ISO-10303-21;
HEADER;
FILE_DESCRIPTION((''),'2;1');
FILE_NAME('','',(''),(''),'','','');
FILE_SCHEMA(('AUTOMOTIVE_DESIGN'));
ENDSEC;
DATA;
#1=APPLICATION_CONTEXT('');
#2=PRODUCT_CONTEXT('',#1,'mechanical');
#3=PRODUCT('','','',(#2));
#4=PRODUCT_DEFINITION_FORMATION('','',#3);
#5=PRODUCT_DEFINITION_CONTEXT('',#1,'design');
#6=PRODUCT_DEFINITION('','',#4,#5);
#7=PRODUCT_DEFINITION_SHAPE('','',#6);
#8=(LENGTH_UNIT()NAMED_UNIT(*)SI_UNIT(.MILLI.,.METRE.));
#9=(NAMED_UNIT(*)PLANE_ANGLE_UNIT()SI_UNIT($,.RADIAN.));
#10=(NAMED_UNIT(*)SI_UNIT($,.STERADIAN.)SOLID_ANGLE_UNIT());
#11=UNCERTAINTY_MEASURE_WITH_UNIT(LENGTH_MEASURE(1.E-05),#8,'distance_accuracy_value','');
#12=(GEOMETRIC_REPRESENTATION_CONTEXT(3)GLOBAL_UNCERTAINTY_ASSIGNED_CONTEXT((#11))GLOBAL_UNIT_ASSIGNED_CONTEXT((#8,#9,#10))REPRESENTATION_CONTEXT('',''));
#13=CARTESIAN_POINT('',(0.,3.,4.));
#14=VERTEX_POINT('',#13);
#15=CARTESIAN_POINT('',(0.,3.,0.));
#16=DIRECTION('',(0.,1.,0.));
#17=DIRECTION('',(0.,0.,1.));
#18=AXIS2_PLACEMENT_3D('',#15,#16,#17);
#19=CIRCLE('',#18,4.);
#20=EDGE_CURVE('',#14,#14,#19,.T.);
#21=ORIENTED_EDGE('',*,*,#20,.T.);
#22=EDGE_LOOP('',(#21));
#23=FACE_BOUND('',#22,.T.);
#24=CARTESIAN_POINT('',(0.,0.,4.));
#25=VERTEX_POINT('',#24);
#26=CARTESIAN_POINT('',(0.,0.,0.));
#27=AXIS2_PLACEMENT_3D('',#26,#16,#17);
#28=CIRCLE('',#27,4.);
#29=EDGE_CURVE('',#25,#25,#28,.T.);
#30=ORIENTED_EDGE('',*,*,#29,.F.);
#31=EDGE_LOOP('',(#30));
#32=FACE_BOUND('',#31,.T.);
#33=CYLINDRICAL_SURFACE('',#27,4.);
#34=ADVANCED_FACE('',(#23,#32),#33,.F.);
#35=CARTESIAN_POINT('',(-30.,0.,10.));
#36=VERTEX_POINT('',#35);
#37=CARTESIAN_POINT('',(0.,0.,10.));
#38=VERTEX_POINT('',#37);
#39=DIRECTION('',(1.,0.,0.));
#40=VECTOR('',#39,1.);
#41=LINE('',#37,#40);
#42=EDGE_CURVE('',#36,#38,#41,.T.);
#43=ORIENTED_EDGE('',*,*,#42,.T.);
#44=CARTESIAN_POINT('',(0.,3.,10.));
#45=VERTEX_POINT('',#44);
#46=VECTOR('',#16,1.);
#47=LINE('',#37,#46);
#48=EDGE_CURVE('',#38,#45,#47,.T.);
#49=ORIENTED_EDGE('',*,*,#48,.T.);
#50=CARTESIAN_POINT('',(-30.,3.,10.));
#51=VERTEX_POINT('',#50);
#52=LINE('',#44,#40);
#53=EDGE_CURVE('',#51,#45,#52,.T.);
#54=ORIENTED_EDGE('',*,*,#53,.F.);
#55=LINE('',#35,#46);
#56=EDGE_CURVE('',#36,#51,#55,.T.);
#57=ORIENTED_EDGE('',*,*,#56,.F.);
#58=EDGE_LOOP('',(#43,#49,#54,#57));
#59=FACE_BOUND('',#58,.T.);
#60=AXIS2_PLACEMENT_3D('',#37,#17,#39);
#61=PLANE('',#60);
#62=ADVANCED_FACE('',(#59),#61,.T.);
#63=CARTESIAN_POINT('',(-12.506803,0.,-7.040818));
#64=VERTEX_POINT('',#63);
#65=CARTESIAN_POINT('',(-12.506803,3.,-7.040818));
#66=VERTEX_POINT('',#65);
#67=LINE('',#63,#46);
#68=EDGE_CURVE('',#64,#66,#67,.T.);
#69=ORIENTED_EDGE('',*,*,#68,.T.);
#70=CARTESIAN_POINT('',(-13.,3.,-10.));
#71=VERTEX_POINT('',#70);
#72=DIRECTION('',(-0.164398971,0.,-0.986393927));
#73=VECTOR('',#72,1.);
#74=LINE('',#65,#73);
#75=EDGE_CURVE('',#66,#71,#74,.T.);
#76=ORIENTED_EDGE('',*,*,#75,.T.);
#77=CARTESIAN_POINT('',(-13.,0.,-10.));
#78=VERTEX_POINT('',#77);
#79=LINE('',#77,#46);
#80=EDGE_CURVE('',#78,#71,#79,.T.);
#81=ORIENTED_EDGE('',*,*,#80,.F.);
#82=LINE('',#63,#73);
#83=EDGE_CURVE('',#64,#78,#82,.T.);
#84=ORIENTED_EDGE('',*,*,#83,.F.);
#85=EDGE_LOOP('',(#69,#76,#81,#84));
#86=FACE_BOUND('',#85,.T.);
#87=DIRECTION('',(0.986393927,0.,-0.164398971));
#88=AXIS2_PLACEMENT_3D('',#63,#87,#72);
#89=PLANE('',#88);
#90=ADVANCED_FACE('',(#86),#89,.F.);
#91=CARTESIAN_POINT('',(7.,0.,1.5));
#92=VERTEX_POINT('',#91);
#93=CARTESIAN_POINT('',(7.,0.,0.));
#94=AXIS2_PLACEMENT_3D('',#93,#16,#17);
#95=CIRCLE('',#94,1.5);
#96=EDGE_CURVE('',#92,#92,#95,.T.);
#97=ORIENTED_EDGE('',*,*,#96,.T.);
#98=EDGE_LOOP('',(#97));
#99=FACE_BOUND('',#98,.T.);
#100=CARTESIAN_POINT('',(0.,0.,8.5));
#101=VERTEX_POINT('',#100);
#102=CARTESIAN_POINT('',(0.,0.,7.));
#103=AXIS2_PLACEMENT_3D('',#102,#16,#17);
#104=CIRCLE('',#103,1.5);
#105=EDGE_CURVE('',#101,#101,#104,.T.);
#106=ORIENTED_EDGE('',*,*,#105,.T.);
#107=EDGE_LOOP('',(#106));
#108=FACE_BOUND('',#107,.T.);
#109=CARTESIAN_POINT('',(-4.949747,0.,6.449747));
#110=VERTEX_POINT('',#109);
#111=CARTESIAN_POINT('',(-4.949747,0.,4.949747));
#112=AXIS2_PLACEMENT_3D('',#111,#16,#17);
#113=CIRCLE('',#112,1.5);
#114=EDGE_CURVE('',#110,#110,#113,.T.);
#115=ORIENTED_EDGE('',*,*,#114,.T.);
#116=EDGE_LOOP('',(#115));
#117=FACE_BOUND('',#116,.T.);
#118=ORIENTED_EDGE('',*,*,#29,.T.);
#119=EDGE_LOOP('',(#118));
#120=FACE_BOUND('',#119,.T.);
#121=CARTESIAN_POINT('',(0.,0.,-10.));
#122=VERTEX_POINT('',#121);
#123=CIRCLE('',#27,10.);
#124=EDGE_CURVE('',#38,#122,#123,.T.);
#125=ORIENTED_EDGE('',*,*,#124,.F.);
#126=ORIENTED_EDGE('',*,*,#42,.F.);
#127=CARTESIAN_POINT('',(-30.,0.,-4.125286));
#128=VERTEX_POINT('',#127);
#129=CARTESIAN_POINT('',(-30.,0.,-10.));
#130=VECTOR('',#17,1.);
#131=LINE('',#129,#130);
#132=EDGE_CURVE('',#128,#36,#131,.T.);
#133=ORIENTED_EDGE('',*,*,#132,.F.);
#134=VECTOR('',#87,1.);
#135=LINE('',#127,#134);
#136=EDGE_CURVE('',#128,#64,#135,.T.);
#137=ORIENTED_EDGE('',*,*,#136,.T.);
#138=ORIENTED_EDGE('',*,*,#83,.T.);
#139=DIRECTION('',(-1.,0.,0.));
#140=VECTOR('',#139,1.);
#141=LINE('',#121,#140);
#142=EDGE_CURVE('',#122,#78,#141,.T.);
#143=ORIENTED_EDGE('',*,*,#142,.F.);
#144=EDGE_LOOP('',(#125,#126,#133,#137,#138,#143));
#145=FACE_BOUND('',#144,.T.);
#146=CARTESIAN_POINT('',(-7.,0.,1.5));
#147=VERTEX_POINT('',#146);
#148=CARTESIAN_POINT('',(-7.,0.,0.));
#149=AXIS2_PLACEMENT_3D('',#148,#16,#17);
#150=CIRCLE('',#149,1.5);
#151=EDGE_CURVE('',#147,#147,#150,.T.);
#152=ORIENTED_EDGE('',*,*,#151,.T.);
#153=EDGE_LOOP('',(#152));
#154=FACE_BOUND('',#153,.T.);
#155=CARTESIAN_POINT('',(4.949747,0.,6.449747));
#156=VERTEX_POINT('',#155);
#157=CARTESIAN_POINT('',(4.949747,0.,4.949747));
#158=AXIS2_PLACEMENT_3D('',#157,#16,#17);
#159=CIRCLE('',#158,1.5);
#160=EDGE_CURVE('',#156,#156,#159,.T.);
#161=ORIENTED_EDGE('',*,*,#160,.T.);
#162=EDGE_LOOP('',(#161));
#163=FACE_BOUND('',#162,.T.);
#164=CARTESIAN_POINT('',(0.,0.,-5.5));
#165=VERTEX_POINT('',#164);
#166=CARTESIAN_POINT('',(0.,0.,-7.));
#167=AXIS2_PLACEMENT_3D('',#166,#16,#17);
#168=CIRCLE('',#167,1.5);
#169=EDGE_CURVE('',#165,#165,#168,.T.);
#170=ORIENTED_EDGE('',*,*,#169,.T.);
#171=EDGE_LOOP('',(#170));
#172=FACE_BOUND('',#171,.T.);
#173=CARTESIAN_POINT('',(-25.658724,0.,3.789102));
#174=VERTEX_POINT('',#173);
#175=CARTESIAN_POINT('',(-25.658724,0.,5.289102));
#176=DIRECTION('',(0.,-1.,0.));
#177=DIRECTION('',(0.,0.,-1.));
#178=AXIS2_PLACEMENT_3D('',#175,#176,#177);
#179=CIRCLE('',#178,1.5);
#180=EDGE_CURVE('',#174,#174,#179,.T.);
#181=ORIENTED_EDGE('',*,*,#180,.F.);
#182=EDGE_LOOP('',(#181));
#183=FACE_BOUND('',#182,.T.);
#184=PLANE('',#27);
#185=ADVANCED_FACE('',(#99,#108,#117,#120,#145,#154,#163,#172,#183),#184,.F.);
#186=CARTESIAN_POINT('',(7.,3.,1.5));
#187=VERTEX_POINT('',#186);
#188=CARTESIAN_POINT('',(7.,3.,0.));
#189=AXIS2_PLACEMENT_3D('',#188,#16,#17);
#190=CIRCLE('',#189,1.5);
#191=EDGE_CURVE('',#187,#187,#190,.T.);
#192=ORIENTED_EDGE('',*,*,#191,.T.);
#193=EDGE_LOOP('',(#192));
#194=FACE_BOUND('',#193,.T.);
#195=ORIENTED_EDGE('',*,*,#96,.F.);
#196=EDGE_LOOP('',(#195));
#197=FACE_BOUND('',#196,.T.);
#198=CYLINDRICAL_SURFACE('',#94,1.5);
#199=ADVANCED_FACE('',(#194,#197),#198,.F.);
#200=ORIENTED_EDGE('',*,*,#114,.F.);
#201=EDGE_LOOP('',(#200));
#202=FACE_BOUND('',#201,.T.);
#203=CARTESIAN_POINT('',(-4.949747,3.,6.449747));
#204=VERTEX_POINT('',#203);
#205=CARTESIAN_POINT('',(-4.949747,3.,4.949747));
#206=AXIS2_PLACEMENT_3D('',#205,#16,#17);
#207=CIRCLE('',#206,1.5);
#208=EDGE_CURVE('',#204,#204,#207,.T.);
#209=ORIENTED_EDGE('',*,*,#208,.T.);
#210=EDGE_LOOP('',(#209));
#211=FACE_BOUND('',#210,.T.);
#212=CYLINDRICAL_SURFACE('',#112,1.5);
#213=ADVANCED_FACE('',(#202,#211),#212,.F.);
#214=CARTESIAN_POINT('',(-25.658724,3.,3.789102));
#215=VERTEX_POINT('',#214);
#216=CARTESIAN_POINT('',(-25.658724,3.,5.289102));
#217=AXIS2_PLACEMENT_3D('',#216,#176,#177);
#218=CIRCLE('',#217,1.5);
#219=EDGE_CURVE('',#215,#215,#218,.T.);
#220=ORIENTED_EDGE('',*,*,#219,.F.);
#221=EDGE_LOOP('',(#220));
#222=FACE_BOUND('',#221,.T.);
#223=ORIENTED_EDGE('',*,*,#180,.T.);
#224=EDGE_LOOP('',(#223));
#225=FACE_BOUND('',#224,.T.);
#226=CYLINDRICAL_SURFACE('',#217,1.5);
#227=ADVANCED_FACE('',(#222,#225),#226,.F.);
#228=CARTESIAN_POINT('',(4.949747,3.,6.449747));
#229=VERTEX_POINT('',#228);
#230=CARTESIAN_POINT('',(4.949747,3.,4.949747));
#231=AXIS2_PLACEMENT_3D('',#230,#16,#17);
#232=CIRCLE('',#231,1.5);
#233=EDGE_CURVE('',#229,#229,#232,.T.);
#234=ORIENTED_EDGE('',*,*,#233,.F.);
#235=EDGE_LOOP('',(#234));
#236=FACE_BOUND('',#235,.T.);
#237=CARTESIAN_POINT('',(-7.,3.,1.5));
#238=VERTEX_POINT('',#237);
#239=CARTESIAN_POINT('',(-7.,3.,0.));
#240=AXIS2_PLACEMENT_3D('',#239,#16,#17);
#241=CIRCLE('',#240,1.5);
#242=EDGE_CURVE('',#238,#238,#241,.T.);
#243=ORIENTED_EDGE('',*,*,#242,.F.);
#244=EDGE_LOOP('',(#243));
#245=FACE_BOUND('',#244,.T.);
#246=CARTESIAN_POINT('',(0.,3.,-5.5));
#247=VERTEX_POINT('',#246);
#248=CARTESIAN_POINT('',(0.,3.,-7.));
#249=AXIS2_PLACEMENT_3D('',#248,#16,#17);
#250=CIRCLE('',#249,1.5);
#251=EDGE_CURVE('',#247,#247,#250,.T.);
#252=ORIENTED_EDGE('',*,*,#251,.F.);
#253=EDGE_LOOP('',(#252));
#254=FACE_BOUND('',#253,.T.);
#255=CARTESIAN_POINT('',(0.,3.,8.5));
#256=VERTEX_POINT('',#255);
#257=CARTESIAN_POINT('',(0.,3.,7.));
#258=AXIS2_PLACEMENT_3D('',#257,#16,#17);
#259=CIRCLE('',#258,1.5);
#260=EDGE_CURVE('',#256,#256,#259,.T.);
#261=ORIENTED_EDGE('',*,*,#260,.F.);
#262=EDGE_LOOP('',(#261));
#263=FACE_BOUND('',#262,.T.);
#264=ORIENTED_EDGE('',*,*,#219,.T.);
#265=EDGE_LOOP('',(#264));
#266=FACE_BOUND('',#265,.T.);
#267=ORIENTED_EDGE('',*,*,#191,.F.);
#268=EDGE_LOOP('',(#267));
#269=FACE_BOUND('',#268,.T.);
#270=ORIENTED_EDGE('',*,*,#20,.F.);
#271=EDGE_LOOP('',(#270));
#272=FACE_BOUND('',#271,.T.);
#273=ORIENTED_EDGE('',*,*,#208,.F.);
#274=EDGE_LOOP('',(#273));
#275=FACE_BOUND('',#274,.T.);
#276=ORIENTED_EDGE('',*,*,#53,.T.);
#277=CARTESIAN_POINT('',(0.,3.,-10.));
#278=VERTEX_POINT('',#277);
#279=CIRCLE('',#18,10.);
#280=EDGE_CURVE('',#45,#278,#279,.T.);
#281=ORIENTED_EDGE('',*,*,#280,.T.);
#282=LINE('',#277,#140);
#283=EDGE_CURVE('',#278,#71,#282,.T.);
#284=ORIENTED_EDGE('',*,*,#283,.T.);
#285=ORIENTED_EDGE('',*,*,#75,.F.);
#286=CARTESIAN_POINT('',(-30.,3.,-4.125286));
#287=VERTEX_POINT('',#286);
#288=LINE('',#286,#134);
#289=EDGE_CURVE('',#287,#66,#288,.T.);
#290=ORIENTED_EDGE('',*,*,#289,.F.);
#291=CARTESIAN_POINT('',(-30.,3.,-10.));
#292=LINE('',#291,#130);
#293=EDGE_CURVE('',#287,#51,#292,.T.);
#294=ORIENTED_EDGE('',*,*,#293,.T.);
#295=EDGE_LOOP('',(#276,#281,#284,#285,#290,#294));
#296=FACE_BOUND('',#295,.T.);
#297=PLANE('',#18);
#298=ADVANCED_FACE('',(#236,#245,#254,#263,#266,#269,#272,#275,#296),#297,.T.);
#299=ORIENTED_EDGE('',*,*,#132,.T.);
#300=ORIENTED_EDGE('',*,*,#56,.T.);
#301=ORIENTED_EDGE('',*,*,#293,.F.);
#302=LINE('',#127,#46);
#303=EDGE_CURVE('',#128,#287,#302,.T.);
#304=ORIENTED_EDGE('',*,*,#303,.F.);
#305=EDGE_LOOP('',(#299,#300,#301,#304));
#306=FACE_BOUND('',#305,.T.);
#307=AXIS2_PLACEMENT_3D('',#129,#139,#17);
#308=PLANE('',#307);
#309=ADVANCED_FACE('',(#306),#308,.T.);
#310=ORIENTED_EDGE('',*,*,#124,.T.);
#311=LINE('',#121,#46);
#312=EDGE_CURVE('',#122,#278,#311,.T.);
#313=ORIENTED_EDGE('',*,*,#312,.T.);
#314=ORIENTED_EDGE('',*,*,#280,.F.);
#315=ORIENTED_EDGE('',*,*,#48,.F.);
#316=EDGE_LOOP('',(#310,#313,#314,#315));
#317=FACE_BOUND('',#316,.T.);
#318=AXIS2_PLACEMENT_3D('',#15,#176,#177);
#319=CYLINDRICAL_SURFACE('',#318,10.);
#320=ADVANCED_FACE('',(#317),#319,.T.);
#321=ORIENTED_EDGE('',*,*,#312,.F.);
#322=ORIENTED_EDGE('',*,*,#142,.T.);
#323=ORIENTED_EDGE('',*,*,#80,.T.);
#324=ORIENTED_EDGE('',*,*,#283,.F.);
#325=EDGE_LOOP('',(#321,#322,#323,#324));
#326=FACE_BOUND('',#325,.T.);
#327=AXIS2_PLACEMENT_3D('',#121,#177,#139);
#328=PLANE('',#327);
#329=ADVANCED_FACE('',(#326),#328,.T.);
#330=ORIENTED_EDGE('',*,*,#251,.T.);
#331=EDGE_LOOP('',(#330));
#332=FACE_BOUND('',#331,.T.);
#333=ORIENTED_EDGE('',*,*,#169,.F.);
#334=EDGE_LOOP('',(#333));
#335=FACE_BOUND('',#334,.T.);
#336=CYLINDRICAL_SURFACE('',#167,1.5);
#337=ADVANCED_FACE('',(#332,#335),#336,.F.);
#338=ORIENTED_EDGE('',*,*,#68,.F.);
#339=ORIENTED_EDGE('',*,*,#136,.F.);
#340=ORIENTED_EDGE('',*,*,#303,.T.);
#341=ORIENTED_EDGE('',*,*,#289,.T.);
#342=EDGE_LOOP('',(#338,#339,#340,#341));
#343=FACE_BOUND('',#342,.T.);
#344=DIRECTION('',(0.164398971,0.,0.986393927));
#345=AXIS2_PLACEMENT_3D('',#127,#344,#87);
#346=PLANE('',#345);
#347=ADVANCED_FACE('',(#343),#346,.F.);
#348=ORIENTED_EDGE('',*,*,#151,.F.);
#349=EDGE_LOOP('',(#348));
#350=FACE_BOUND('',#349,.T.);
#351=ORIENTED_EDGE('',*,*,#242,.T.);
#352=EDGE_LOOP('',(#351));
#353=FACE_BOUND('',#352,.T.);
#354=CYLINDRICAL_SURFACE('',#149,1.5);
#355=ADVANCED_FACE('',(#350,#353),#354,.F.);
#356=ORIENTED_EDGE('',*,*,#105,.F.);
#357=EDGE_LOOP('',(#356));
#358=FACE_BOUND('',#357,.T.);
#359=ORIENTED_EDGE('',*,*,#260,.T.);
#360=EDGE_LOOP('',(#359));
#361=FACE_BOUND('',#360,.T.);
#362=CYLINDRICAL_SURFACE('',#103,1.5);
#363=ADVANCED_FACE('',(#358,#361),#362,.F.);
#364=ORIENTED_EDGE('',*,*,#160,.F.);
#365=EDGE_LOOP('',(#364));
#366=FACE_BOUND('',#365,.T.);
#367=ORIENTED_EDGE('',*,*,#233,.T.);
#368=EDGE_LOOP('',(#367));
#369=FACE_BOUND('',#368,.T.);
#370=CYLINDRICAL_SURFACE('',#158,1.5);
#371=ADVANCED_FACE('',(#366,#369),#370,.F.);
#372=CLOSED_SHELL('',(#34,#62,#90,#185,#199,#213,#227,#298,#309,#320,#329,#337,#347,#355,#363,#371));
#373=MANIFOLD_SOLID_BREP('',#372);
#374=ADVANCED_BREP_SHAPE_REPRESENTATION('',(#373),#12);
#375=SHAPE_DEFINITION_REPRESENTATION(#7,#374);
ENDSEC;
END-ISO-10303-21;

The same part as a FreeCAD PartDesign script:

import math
import FreeCAD as App
import Part
import Sketcher

V = App.Vector
Q = App.Units.Quantity


def add_polygon(sketch, points):
    """Adds a closed chain of lines whose ends are joined by coincident constraints."""
    first, n = sketch.GeometryCount, len(points)
    for a, b in zip(points, points[1:] + points[:1]):
        sketch.addGeometry(Part.LineSegment(App.Vector(*a, 0), App.Vector(*b, 0)), False)
    for i in range(n):
        sketch.addConstraint(Sketcher.Constraint("Coincident", first + i, 2, first + (i + 1) % n, 1))

doc = App.newDocument("Part")
body = doc.addObject("PartDesign::Body", "Body")

# Sketch on XZ plane
sketch1 = doc.addObject("Sketcher::SketchObject", "Sketch")
body.addObject(sketch1)
sketch1.AttachmentSupport = (doc.XZ_Plane, [""])
sketch1.MapMode = "FlatFace"
sketch1.addGeometry(Part.Circle(V(0, 0, 0), V(0, 0, 1), 10), False)
sketch1.addConstraint([
    Sketcher.Constraint("Coincident", 0, 3, -1, 1),
    Sketcher.Constraint("Diameter", 0, Q("20 mm")),
])
pad1 = doc.addObject("PartDesign::Pad", "Pad")
body.addObject(pad1)
pad1.Profile = sketch1
pad1.Length = 3
pad1.Reversed = True

# Sketch on XZ plane
sketch2 = doc.addObject("Sketcher::SketchObject", "Sketch001")
body.addObject(sketch2)
sketch2.AttachmentSupport = (doc.XZ_Plane, [""])
sketch2.MapMode = "FlatFace"
sketch2.AttachmentOffset = App.Placement(V(0, 0, -3), App.Rotation())
sketch2.addGeometry(Part.Circle(V(0, 0, 0), V(0, 0, 1), 4), False)
sketch2.addConstraint([
    Sketcher.Constraint("Coincident", 0, 3, -1, 1),
    Sketcher.Constraint("Diameter", 0, Q("8 mm")),
])
pocket1 = doc.addObject("PartDesign::Pocket", "Pocket")
body.addObject(pocket1)
pocket1.Profile = sketch2
pocket1.Type = "ThroughAll"
pocket1.Reversed = True

# Sketch on XZ plane
sketch3 = doc.addObject("Sketcher::SketchObject", "Sketch002")
body.addObject(sketch3)
sketch3.AttachmentSupport = (doc.XZ_Plane, [""])
sketch3.MapMode = "FlatFace"
sketch3.AttachmentOffset = App.Placement(V(0, 0, -3), App.Rotation())
sketch3.addGeometry([
    Part.Circle(V(7, 0, 0), V(0, 0, 1), 1.5),  # 0
    Part.Circle(V(4.9, 4.9, 0), V(0, 0, 1), 1.5),  # 1
    Part.Circle(V(0, 7, 0), V(0, 0, 1), 1.5),  # 2
    Part.Circle(V(-4.9, 4.9, 0), V(0, 0, 1), 1.5),  # 3
    Part.Circle(V(-7, 0, 0), V(0, 0, 1), 1.5),  # 4
    Part.Circle(V(0, -7, 0), V(0, 0, 1), 1.5),  # 5
], False)
sketch3.addConstraint([
    Sketcher.Constraint("Equal", 0, 1),
    Sketcher.Constraint("Equal", 1, 2),
    Sketcher.Constraint("Equal", 2, 3),
    Sketcher.Constraint("Equal", 3, 4),
    Sketcher.Constraint("Equal", 4, 5),
    Sketcher.Constraint("Symmetric", 0, 3, 4, 3, -1, 1),
    Sketcher.Constraint("Symmetric", 2, 3, 5, 3, -1, 1),
    Sketcher.Constraint("Symmetric", 1, 3, 3, 3, -2),
    Sketcher.Constraint("PointOnObject", 0, 3, -1),
    Sketcher.Constraint("PointOnObject", 2, 3, -2),
    Sketcher.Constraint("Diameter", 0, Q("3 mm")),
    Sketcher.Constraint("DistanceX", -1, 1, 0, 3, Q("7 mm")),
    Sketcher.Constraint("DistanceY", -1, 1, 2, 3, Q("7 mm")),
    Sketcher.Constraint("DistanceX", -1, 1, 1, 3, Q("4.949747 mm")),
    Sketcher.Constraint("DistanceY", -1, 1, 1, 3, Q("4.949747 mm")),
])
pocket2 = doc.addObject("PartDesign::Pocket", "Pocket001")
body.addObject(pocket2)
pocket2.Profile = sketch3
pocket2.Type = "ThroughAll"
pocket2.Reversed = True

# Sketch on XZ plane
sketch4 = doc.addObject("Sketcher::SketchObject", "Sketch003")
body.addObject(sketch4)
sketch4.AttachmentSupport = (doc.XZ_Plane, [""])
sketch4.MapMode = "FlatFace"
sketch4.addGeometry([
    Part.LineSegment(V(0, -10, 0), V(-30, -10, 0)),
    Part.LineSegment(V(-30, -10, 0), V(-30, 10, 0)),
    Part.LineSegment(V(-30, 10, 0), V(0, 10, 0)),
    Part.ArcOfCircle(Part.Circle(V(0, 0, 0), V(0, 0, 1), 10), math.radians(90), math.radians(270)),
], False)
sketch4.addConstraint([
    Sketcher.Constraint("Coincident", 0, 2, 1, 1),
    Sketcher.Constraint("Coincident", 1, 2, 2, 1),
    Sketcher.Constraint("Tangent", 2, 2, 3, 1),
    Sketcher.Constraint("Tangent", 3, 2, 0, 1),
    Sketcher.Constraint("Horizontal", 0),
    Sketcher.Constraint("Vertical", 1),
    Sketcher.Constraint("Horizontal", 2),
    Sketcher.Constraint("Coincident", 3, 3, -1, 1),
    Sketcher.Constraint("Radius", 3, Q("10 mm")),
    Sketcher.Constraint("DistanceX", 0, 2, 0, 1, Q("30 mm")),
])
pad2 = doc.addObject("PartDesign::Pad", "Pad001")
body.addObject(pad2)
pad2.Profile = sketch4
pad2.Length = 3
pad2.Reversed = True

# Sketch on XZ plane
sketch5 = doc.addObject("Sketcher::SketchObject", "Sketch004")
body.addObject(sketch5)
sketch5.AttachmentSupport = (doc.XZ_Plane, [""])
sketch5.MapMode = "FlatFace"
sketch5.AttachmentOffset = App.Placement(V(0, 0, -3), App.Rotation())
add_polygon(sketch5, [(-30, -4.1), (-12.5, -7), (-13, -10), (-30, -10)])  # lines 0-3
sketch5.addConstraint([
    Sketcher.Constraint("Horizontal", 2),
    Sketcher.Constraint("Vertical", 3),
    Sketcher.Constraint("Perpendicular", 0, 1),
    Sketcher.Constraint("DistanceX", 2, 2, 2, 1, Q("17 mm")),
    Sketcher.Constraint("Distance", 1, Q("3 mm")),
    Sketcher.Constraint("DistanceX", 1, 2, -1, 1, Q("13 mm")),
    Sketcher.Constraint("DistanceY", 1, 2, -1, 1, Q("10 mm")),
    Sketcher.Constraint("DistanceY", 3, 1, 3, 2, Q("5.874714 mm")),
])
pocket3 = doc.addObject("PartDesign::Pocket", "Pocket002")
body.addObject(pocket3)
pocket3.Profile = sketch5
pocket3.Type = "ThroughAll"
pocket3.Reversed = True

# Sketch on XZ plane
sketch6 = doc.addObject("Sketcher::SketchObject", "Sketch005")
body.addObject(sketch6)
sketch6.AttachmentSupport = (doc.XZ_Plane, [""])
sketch6.MapMode = "FlatFace"
sketch6.addGeometry(Part.Circle(V(-25.7, 5.3, 0), V(0, 0, 1), 1.5), False)
sketch6.addConstraint([
    Sketcher.Constraint("Diameter", 0, Q("3 mm")),
    Sketcher.Constraint("DistanceX", 0, 3, -1, 1, Q("25.658724 mm")),
    Sketcher.Constraint("DistanceY", -1, 1, 0, 3, Q("5.289102 mm")),
])
pocket4 = doc.addObject("PartDesign::Pocket", "Pocket003")
body.addObject(pocket4)
pocket4.Profile = sketch6
pocket4.Type = "ThroughAll"

doc.recompute()
